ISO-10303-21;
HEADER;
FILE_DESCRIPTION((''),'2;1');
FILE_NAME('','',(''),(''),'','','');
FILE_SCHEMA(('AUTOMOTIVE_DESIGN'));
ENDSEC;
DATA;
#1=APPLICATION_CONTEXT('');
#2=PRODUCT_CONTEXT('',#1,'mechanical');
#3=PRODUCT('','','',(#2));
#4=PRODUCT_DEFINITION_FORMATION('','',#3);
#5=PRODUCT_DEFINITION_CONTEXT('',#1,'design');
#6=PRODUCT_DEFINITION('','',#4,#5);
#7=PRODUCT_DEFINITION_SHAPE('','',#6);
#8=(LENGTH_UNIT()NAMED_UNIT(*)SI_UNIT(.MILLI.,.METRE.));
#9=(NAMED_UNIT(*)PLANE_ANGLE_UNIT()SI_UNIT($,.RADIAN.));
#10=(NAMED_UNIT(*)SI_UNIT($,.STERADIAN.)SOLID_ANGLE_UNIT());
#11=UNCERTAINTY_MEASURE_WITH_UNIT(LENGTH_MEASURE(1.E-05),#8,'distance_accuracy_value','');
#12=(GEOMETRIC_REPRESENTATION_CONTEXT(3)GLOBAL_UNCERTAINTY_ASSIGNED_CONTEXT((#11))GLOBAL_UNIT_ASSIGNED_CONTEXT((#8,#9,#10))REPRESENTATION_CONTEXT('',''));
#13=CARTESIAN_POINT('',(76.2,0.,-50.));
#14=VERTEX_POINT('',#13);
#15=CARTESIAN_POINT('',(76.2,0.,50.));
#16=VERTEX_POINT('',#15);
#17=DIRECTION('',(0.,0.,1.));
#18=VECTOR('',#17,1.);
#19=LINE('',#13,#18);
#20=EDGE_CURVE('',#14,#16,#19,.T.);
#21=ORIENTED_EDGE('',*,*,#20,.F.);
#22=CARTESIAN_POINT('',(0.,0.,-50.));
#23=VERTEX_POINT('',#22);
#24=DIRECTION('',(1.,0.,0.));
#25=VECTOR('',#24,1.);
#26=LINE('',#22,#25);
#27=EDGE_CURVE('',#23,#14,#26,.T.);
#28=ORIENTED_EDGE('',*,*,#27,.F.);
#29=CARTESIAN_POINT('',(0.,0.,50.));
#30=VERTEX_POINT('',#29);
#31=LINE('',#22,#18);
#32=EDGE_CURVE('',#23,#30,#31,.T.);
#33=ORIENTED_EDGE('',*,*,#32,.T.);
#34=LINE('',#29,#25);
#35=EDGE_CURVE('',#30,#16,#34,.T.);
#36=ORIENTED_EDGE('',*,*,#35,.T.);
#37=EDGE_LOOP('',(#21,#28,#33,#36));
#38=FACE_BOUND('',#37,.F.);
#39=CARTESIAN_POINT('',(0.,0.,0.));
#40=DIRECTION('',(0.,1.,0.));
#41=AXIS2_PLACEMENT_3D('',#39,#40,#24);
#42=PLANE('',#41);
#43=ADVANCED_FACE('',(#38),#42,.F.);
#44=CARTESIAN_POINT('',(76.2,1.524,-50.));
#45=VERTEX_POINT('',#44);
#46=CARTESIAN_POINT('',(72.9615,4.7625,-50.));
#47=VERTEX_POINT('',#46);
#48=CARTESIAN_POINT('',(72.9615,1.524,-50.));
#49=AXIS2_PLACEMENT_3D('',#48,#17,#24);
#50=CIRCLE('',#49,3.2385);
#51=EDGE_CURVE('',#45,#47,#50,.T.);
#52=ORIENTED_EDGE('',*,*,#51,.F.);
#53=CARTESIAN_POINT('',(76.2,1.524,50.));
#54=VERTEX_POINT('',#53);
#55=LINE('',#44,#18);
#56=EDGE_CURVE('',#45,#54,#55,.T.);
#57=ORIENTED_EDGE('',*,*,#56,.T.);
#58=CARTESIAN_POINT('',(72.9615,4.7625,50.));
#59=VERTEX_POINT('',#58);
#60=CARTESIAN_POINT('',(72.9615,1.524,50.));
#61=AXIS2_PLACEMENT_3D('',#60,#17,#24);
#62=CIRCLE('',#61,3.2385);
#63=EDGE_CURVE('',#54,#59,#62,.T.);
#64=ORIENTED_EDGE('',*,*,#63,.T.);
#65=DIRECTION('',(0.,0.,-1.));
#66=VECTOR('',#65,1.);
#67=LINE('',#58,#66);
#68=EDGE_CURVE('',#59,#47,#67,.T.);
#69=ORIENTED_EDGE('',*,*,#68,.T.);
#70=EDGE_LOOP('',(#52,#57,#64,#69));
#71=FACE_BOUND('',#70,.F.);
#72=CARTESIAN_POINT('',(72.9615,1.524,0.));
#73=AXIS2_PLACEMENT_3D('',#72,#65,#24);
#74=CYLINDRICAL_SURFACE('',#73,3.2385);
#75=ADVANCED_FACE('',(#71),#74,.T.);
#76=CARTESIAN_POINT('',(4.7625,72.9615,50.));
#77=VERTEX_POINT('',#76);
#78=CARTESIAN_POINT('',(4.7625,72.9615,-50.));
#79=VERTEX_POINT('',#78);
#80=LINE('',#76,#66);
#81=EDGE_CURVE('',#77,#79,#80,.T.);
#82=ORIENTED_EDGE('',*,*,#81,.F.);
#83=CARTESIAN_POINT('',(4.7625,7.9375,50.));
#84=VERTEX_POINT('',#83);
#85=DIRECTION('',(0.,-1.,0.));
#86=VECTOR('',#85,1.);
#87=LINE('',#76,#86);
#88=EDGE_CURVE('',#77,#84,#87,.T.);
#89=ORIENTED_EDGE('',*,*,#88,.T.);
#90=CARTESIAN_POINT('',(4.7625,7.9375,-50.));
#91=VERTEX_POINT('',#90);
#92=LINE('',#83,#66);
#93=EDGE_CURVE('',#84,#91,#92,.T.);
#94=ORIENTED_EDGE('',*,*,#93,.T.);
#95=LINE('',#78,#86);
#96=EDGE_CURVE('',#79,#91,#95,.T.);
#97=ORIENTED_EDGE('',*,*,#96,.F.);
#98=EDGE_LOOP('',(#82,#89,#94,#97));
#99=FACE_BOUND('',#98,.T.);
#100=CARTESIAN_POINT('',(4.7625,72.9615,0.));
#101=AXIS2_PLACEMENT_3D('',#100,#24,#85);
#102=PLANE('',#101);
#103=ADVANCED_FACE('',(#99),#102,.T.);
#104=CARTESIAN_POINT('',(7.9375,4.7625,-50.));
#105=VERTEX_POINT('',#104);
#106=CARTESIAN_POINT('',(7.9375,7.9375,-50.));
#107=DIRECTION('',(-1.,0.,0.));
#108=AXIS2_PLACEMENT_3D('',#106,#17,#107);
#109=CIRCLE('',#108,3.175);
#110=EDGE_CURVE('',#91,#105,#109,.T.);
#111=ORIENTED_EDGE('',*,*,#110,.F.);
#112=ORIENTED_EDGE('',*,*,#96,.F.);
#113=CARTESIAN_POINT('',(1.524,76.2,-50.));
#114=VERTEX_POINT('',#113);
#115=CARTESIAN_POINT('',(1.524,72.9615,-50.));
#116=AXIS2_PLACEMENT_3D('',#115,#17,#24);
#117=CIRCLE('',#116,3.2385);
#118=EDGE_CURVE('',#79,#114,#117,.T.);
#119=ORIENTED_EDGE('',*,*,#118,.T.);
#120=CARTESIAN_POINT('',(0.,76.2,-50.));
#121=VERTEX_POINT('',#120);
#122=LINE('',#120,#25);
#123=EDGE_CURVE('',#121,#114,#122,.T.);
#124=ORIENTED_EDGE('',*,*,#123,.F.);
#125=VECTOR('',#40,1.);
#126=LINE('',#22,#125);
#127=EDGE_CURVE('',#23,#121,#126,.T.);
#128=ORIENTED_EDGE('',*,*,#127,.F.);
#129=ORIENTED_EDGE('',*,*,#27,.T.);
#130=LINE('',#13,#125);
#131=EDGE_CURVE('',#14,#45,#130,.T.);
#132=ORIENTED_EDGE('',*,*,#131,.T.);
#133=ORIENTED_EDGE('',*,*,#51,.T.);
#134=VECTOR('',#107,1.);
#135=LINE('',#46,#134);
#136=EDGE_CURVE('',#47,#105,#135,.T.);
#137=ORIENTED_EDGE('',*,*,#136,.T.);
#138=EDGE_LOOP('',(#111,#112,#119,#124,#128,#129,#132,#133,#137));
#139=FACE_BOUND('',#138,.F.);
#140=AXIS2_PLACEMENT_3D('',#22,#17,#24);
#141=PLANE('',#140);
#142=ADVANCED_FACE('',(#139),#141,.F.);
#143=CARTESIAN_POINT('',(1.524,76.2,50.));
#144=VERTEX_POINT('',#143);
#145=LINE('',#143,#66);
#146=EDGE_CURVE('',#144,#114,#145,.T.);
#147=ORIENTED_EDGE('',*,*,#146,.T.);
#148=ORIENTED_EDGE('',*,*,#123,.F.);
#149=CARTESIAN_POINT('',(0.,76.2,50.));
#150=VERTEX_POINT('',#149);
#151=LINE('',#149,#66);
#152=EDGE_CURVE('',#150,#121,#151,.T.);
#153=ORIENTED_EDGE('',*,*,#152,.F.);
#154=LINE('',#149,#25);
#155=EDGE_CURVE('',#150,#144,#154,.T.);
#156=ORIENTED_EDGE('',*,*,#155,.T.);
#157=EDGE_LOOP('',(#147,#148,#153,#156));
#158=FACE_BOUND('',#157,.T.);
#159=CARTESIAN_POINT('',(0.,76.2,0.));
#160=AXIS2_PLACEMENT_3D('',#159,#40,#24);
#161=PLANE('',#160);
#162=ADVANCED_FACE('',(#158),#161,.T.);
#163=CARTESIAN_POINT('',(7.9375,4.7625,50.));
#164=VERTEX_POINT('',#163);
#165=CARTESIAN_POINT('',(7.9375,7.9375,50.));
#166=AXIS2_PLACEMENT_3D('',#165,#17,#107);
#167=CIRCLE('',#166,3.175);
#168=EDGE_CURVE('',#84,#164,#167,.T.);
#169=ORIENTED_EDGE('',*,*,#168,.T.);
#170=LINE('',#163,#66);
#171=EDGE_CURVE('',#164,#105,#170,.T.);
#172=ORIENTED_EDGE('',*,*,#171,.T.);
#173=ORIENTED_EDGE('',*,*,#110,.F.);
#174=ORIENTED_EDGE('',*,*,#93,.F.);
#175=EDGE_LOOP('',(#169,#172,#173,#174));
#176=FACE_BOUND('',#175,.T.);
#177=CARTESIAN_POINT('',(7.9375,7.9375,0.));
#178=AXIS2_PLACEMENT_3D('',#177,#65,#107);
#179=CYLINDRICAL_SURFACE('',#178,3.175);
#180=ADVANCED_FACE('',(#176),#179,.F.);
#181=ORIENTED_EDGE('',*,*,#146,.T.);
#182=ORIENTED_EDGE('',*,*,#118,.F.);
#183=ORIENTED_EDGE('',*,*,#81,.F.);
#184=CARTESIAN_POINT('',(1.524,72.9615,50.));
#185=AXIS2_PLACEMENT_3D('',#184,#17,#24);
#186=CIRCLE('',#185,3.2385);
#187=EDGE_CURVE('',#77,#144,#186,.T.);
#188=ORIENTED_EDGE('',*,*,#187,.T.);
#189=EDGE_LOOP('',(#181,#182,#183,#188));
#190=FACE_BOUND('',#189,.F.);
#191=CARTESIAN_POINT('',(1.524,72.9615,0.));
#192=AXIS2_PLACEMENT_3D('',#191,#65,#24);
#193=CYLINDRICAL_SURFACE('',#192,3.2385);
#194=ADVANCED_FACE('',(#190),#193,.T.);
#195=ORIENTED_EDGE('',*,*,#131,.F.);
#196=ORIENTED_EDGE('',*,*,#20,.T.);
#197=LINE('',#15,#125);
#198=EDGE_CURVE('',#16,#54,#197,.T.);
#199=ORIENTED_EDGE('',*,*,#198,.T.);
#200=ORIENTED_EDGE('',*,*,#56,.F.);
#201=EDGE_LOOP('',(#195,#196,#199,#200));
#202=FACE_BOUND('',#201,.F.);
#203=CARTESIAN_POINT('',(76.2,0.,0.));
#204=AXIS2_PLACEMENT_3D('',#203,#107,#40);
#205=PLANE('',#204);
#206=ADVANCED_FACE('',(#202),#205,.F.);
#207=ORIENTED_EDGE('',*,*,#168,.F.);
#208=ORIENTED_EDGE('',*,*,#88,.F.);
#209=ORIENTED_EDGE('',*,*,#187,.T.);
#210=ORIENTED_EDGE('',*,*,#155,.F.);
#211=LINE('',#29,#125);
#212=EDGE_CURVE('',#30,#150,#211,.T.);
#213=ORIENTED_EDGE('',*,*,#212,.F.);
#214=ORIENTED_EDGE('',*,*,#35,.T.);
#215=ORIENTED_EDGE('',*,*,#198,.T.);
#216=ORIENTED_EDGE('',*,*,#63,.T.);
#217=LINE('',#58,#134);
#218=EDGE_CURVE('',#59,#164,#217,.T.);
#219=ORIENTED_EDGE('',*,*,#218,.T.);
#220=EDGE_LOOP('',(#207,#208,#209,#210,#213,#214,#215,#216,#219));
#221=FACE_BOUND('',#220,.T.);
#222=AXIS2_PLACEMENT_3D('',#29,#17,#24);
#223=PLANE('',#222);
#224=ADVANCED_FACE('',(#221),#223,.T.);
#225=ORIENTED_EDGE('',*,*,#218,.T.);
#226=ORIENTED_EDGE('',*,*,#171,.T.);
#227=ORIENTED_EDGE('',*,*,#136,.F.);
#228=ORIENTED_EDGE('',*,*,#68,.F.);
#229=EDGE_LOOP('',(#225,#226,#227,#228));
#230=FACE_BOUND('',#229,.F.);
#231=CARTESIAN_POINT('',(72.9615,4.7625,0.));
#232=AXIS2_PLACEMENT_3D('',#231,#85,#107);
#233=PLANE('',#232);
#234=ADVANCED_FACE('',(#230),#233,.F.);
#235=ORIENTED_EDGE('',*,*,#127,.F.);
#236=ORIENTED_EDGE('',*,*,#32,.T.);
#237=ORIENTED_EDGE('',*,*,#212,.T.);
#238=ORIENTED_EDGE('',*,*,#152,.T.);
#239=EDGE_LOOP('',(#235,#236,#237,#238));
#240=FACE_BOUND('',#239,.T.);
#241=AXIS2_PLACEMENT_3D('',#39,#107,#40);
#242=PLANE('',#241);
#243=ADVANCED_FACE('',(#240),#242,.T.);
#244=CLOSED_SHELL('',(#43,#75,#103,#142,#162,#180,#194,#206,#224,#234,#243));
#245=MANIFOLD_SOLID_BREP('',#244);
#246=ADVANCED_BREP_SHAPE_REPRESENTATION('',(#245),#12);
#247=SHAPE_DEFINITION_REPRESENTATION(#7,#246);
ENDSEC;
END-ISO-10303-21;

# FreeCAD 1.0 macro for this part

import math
import FreeCAD as App
import Part
import Sketcher
from FreeCAD import Vector
Q = App.Units.Quantity

doc = App.newDocument("Part")
body = doc.addObject("PartDesign::Body", "Body")

# Sketch on XY plane
sketch1 = body.newObject("Sketcher::SketchObject", "Sketch")
sketch1.AttachmentSupport = (doc.getObject("XY_Plane"), [""])
sketch1.MapMode = "FlatFace"
sketch1.addGeometry([
    Part.LineSegment(Vector(0, 76.2, 0), Vector(0, 0, 0)),  # 0
    Part.LineSegment(Vector(0, 0, 0), Vector(76.2, 0, 0)),  # 1
    Part.LineSegment(Vector(76.2, 0, 0), Vector(76.2, 1.5, 0)),  # 2
    Part.ArcOfCircle(Part.Circle(Vector(73, 1.5, 0), Vector(0, 0, 1), 3.2), math.radians(0), math.radians(90)),  # 3
    Part.LineSegment(Vector(73, 4.8, 0), Vector(7.9, 4.8, 0)),  # 4
    Part.ArcOfCircle(Part.Circle(Vector(7.9, 7.9, 0), Vector(0, 0, 1), 3.2), math.radians(180), math.radians(270)),  # 5
    Part.LineSegment(Vector(4.8, 7.9, 0), Vector(4.8, 73, 0)),  # 6
    Part.ArcOfCircle(Part.Circle(Vector(1.5, 73, 0), Vector(0, 0, 1), 3.2), math.radians(0), math.radians(90)),  # 7
    Part.LineSegment(Vector(1.5, 76.2, 0), Vector(0, 76.2, 0)),  # 8
], False)
sketch1.addConstraint([
    Sketcher.Constraint("Coincident", 0, 2, 1, 1),
    Sketcher.Constraint("Coincident", 1, 2, 2, 1),
    Sketcher.Constraint("Tangent", 2, 2, 3, 1),
    Sketcher.Constraint("Tangent", 3, 2, 4, 1),
    Sketcher.Constraint("Tangent", 4, 2, 5, 2),
    Sketcher.Constraint("Tangent", 5, 1, 6, 1),
    Sketcher.Constraint("Tangent", 6, 2, 7, 1),
    Sketcher.Constraint("Tangent", 7, 2, 8, 1),
    Sketcher.Constraint("Coincident", 8, 2, 0, 1),
    Sketcher.Constraint("Vertical", 0),
    Sketcher.Constraint("Horizontal", 1),
    Sketcher.Constraint("Vertical", 2),
    Sketcher.Constraint("Horizontal", 4),
    Sketcher.Constraint("Vertical", 6),
    Sketcher.Constraint("Horizontal", 8),
    Sketcher.Constraint("Coincident", 0, 2, -1, 1),
    Sketcher.Constraint("Equal", 3, 7),
    Sketcher.Constraint("Equal", 1, 0),
    Sketcher.Constraint("Equal", 8, 2),
    Sketcher.Constraint("DistanceX", 1, 1, 1, 2, Q("3 in")),
    Sketcher.Constraint("Radius", 5, Q("0.125 in")),
    Sketcher.Constraint("Radius", 3, Q("0.1275 in")),
    Sketcher.Constraint("DistanceY", -1, 1, 3, 2, Q("0.1875 in")),
])
pad1 = body.newObject("PartDesign::Pad", "Pad")
pad1.Profile = sketch1
pad1.Length = Q("3.9370079 in")
pad1.Midplane = True

doc.recompute()
